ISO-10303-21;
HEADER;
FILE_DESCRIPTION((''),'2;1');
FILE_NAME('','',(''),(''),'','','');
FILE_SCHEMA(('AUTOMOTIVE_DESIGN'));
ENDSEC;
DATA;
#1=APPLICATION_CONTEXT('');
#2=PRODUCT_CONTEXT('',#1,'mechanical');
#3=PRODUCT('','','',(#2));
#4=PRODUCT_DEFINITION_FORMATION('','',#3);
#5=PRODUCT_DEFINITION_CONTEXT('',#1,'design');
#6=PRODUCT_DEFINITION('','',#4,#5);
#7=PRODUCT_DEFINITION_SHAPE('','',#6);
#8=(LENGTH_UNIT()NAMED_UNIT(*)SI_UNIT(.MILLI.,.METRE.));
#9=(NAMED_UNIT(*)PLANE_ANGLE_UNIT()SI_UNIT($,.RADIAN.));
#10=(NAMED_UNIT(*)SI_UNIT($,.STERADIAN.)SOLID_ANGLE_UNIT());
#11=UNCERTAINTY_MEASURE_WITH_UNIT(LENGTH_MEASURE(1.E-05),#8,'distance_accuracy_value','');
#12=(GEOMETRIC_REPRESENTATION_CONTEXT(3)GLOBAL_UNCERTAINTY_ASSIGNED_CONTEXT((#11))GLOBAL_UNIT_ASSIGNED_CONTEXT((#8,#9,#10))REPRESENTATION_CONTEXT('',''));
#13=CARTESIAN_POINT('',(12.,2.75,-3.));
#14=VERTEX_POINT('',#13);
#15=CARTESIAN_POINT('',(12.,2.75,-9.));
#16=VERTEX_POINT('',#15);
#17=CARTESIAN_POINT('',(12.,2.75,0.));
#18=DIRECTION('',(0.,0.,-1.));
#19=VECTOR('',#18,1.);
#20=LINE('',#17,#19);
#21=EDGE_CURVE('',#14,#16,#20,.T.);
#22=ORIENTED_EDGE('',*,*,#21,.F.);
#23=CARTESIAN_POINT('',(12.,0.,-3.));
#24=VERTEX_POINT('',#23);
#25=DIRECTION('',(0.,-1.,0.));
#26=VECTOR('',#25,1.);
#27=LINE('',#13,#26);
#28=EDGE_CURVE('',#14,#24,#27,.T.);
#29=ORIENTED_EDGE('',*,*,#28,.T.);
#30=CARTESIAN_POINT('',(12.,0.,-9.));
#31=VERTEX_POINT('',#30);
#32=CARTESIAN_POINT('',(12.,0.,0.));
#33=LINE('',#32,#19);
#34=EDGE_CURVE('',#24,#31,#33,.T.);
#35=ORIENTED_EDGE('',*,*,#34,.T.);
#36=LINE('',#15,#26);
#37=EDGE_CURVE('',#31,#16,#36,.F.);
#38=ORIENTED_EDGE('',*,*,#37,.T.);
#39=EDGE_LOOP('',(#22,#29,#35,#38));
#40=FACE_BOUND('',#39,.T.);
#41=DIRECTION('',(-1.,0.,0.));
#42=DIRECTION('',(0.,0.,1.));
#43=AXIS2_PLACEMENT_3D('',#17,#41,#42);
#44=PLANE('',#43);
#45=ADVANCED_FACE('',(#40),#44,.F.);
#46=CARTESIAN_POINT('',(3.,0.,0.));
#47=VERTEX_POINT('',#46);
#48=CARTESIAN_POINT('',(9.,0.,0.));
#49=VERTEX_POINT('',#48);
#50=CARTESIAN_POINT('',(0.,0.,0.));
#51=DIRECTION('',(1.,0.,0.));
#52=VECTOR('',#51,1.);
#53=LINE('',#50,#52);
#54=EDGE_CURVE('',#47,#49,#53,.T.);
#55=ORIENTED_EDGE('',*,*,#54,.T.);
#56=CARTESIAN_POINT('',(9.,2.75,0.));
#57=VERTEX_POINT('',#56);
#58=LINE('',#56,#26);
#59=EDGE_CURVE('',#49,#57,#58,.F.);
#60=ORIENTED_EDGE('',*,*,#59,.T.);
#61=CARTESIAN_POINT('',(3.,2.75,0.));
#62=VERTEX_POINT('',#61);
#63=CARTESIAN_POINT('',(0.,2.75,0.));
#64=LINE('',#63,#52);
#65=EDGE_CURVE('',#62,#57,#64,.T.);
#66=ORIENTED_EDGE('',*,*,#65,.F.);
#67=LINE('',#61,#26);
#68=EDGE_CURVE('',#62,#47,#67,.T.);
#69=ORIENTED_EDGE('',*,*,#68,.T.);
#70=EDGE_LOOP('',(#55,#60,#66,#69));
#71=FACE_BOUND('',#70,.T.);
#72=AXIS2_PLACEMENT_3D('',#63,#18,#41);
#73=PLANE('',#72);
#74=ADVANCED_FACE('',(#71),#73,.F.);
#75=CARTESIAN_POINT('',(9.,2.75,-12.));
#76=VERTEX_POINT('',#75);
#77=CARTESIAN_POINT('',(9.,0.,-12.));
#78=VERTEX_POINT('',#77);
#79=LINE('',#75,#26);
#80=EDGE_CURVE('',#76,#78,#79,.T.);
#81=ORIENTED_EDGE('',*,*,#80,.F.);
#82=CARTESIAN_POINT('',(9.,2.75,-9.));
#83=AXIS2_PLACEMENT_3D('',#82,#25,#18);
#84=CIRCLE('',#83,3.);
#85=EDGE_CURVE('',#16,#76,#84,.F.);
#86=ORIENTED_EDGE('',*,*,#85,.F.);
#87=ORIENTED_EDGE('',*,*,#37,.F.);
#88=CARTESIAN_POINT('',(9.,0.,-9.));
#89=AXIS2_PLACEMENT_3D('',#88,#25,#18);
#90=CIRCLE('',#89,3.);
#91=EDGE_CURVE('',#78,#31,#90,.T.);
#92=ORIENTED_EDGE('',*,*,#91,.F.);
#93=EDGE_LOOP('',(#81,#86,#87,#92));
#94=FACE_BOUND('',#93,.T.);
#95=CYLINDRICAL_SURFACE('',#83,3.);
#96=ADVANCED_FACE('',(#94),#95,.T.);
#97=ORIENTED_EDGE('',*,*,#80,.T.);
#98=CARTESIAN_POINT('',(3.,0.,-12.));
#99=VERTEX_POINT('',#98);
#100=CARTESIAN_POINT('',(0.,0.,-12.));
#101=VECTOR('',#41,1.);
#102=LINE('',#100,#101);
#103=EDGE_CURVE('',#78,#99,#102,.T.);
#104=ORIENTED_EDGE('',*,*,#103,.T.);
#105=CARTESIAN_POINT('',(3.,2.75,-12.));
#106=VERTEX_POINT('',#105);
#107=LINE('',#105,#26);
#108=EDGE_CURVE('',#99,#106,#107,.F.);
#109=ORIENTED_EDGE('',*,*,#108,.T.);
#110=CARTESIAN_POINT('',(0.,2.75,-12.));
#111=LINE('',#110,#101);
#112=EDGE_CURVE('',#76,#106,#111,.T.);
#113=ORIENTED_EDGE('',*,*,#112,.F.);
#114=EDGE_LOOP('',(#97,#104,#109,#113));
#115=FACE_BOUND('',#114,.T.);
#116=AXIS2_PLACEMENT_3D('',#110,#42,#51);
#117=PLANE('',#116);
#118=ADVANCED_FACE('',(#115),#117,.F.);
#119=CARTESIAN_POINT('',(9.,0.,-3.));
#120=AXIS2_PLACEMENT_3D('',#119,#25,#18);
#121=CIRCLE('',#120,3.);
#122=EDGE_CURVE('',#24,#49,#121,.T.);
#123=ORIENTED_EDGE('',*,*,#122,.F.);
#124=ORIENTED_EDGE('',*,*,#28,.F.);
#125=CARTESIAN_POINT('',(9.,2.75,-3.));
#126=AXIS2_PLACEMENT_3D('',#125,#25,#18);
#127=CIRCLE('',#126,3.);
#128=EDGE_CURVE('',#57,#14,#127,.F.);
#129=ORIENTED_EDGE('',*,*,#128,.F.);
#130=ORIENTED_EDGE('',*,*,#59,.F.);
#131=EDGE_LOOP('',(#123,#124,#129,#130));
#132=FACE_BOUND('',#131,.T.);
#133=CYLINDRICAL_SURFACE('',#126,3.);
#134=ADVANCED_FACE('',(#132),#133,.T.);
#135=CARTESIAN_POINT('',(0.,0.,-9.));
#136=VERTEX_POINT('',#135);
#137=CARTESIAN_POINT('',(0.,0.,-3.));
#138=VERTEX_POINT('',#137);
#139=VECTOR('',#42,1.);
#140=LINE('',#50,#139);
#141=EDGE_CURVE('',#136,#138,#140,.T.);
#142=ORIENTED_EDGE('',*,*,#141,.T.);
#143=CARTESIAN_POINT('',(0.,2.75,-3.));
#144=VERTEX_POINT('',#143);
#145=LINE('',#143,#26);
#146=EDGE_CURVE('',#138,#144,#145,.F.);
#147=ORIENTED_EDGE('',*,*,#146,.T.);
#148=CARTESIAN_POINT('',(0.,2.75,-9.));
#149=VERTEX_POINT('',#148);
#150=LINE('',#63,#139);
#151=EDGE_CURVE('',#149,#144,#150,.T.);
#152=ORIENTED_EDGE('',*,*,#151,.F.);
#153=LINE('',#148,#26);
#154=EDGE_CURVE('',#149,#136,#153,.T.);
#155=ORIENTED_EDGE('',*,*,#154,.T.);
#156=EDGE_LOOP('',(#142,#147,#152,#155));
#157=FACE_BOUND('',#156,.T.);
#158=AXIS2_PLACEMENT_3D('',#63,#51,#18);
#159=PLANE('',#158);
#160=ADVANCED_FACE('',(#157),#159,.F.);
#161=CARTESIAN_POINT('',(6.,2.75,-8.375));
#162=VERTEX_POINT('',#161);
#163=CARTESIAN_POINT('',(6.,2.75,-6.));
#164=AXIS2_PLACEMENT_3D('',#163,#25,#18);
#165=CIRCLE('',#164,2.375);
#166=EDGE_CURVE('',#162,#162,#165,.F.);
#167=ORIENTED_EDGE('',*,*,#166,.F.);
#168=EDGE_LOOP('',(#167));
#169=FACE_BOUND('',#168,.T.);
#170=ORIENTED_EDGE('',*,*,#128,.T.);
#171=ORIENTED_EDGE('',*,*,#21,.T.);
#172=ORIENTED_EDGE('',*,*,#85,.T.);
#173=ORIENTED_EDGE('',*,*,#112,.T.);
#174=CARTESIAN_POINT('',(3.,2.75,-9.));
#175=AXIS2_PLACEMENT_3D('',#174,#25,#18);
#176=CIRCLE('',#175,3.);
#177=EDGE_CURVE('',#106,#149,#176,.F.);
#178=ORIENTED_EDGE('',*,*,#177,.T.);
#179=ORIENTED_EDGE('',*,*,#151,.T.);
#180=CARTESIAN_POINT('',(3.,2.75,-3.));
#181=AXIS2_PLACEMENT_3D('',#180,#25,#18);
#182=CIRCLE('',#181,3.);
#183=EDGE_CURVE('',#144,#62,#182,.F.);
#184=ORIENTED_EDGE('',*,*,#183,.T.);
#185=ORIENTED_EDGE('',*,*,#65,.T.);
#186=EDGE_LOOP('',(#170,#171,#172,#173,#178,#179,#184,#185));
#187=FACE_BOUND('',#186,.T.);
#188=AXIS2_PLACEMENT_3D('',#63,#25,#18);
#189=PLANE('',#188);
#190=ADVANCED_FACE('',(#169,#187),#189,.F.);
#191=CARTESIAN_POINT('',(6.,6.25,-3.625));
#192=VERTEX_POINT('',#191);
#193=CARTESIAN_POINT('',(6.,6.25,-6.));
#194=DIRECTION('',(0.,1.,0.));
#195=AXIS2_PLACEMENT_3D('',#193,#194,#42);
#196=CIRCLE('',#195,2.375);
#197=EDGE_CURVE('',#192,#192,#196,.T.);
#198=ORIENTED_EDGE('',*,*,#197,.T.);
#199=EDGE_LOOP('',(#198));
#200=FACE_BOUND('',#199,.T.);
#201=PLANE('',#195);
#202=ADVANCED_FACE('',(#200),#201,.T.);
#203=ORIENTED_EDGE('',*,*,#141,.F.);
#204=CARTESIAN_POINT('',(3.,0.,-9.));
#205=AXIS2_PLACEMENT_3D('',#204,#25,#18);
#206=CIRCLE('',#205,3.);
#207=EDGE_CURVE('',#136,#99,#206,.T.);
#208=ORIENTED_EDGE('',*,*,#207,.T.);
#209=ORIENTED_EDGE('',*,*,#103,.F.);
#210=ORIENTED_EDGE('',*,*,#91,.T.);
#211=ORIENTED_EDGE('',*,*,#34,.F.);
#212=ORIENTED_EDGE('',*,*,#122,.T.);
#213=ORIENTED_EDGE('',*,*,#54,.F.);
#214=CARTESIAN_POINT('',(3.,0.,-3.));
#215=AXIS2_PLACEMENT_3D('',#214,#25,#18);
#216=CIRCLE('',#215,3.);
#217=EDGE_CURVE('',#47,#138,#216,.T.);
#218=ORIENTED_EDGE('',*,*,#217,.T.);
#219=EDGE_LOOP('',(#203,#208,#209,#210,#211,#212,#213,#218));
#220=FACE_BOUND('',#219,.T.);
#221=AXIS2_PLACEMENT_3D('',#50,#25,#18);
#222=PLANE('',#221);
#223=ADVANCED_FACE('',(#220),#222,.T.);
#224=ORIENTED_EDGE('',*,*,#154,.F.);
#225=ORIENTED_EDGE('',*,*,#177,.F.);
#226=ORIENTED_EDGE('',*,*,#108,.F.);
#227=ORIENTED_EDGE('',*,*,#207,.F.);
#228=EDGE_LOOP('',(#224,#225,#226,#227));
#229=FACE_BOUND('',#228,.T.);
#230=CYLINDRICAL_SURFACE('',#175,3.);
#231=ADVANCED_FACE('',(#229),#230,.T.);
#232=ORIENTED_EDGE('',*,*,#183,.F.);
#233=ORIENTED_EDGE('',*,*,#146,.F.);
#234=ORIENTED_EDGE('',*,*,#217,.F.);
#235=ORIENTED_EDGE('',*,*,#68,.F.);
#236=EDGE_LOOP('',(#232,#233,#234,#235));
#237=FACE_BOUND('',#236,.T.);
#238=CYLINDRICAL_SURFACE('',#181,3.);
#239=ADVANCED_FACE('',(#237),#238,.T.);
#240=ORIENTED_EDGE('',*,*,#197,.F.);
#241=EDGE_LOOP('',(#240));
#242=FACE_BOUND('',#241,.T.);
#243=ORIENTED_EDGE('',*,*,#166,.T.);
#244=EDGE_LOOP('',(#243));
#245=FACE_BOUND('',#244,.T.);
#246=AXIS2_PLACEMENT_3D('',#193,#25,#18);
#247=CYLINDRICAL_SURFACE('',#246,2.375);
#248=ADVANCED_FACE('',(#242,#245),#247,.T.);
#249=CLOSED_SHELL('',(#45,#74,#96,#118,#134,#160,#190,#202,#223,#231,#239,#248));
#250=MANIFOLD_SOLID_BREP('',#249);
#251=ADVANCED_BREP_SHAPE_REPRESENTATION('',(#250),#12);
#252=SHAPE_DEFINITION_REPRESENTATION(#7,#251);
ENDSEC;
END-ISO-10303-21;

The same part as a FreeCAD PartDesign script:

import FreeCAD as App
import Part
import Sketcher

V = App.Vector


def edges_at(feature, points):
    """Names of the edges that pass closest to the given points."""
    edges = feature.Shape.Edges
    near = lambda p: min(range(len(edges)), key=lambda i: edges[i].distToShape(Part.Vertex(*p))[0])
    return sorted({f"Edge{near(p) + 1}" for p in points})


def add_polygon(sketch, points):
    """Adds a closed chain of lines whose ends are joined by coincident constraints."""
    first, n = sketch.GeometryCount, len(points)
    for a, b in zip(points, points[1:] + points[:1]):
        sketch.addGeometry(Part.LineSegment(App.Vector(*a, 0), App.Vector(*b, 0)), False)
    for i in range(n):
        sketch.addConstraint(Sketcher.Constraint("Coincident", first + i, 2, first + (i + 1) % n, 1))

doc = App.newDocument("Part")
body = doc.addObject("PartDesign::Body", "Body")

# Sketch on XZ plane
sketch1 = body.newObject("Sketcher::SketchObject", "Sketch")
sketch1.AttachmentSupport = (doc.getObject("XZ_Plane"), [""])
sketch1.MapMode = "FlatFace"
add_polygon(sketch1, [(0, -12), (0, 0), (12, 0), (12, -12)])  # lines 0-3
sketch1.addConstraint(Sketcher.Constraint("Vertical", 0))
sketch1.addConstraint(Sketcher.Constraint("Horizontal", 1))
sketch1.addConstraint(Sketcher.Constraint("Vertical", 2))
sketch1.addConstraint(Sketcher.Constraint("Horizontal", 3))
sketch1.addConstraint(Sketcher.Constraint("Coincident", 0, 2, -1, 1))
sketch1.addConstraint(Sketcher.Constraint("Equal", 3, 0))
sketch1.addConstraint(Sketcher.Constraint("DistanceX", 1, 1, 1, 2, 12.0))
pad1 = body.newObject("PartDesign::Pad", "Pad")
pad1.Profile = sketch1
pad1.Length = 2.75
pad1.Reversed = True

# Sketch on XZ plane
sketch2 = body.newObject("Sketcher::SketchObject", "Sketch001")
sketch2.AttachmentSupport = (doc.getObject("XZ_Plane"), [""])
sketch2.MapMode = "FlatFace"
sketch2.AttachmentOffset = App.Placement(V(0, 0, -2.75), App.Rotation())
sketch2.addGeometry(Part.Circle(V(6, -6, 0), V(0, 0, 1), 2.4), False)
sketch2.addConstraint(Sketcher.Constraint("Diameter", 0, 4.75))
sketch2.addConstraint(Sketcher.Constraint("DistanceX", -1, 1, 0, 3, 6.0))
sketch2.addConstraint(Sketcher.Constraint("DistanceY", 0, 3, -1, 1, 6.0))
pad2 = body.newObject("PartDesign::Pad", "Pad001")
pad2.Profile = sketch2
pad2.Length = 3.5
pad2.Reversed = True
doc.recompute()

fillet = body.newObject("PartDesign::Fillet", "Fillet")
fillet.Base = (pad2, edges_at(pad2, [
    (0, 1.375, -12),
    (12, 1.375, -12),
    (12, 1.375, 0),
    (0, 1.375, 0),
]))
fillet.Radius = 3

doc.recompute()
